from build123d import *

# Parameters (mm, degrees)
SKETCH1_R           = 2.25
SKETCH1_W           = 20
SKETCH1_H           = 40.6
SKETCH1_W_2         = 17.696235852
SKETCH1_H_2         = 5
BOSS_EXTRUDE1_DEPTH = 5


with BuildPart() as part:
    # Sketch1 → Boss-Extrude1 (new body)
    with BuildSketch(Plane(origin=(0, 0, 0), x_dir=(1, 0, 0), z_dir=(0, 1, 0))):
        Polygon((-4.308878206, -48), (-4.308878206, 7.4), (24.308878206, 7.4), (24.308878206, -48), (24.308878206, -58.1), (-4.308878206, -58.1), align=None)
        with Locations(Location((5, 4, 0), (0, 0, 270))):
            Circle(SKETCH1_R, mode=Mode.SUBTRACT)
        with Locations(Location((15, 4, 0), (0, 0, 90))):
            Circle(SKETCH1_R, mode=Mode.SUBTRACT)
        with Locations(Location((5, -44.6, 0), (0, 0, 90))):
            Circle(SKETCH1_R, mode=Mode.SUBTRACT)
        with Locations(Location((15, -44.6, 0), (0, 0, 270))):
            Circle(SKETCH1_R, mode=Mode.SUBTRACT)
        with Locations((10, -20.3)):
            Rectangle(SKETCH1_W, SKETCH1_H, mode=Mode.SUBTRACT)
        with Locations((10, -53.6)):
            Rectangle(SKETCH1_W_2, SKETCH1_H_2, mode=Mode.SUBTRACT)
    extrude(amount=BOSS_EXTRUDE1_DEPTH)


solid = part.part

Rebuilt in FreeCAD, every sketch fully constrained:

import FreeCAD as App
import Part
import Sketcher
from FreeCAD import Vector
Q = App.Units.Quantity

doc = App.newDocument("Part")
body = doc.addObject("PartDesign::Body", "Body")

# Sketch on XZ plane
sketch1 = doc.addObject("Sketcher::SketchObject", "Sketch")
body.addObject(sketch1)
sketch1.AttachmentSupport = (doc.XZ_Plane, [""])
sketch1.MapMode = "FlatFace"
sketch1.addGeometry([
    Part.LineSegment(Vector(-4.3, -7.4, 0), Vector(-4.3, 58.1, 0)),  # 0
    Part.LineSegment(Vector(-4.3, 58.1, 0), Vector(24.3, 58.1, 0)),  # 1
    Part.LineSegment(Vector(24.3, 58.1, 0), Vector(24.3, -7.4, 0)),  # 2
    Part.LineSegment(Vector(24.3, -7.4, 0), Vector(-4.3, -7.4, 0)),  # 3
    Part.Circle(Vector(15, 44.6, 0), Vector(0, 0, 1), 2.2),  # 4
    Part.LineSegment(Vector(1.2, 56.1, 0), Vector(1.2, 51.1, 0)),  # 5
    Part.LineSegment(Vector(1.2, 51.1, 0), Vector(18.8, 51.1, 0)),  # 6
    Part.LineSegment(Vector(18.8, 51.1, 0), Vector(18.8, 56.1, 0)),  # 7
    Part.LineSegment(Vector(18.8, 56.1, 0), Vector(1.2, 56.1, 0)),  # 8
    Part.Circle(Vector(5, 44.6, 0), Vector(0, 0, 1), 2.2),  # 9
    Part.Circle(Vector(15, -4, 0), Vector(0, 0, 1), 2.2),  # 10
    Part.LineSegment(Vector(0, 40.6, 0), Vector(0, 0, 0)),  # 11
    Part.LineSegment(Vector(0, 0, 0), Vector(20, 0, 0)),  # 12
    Part.LineSegment(Vector(20, 0, 0), Vector(20, 40.6, 0)),  # 13
    Part.LineSegment(Vector(20, 40.6, 0), Vector(0, 40.6, 0)),  # 14
    Part.Circle(Vector(5, -4, 0), Vector(0, 0, 1), 2.2),  # 15
], False)
sketch1.addConstraint([
    Sketcher.Constraint("Coincident", 0, 2, 1, 1),
    Sketcher.Constraint("Coincident", 1, 2, 2, 1),
    Sketcher.Constraint("Coincident", 2, 2, 3, 1),
    Sketcher.Constraint("Coincident", 3, 2, 0, 1),
    Sketcher.Constraint("Coincident", 5, 2, 6, 1),
    Sketcher.Constraint("Coincident", 6, 2, 7, 1),
    Sketcher.Constraint("Coincident", 7, 2, 8, 1),
    Sketcher.Constraint("Coincident", 8, 2, 5, 1),
    Sketcher.Constraint("Coincident", 11, 2, 12, 1),
    Sketcher.Constraint("Coincident", 12, 2, 13, 1),
    Sketcher.Constraint("Coincident", 13, 2, 14, 1),
    Sketcher.Constraint("Coincident", 14, 2, 11, 1),
    Sketcher.Constraint("Vertical", 0),
    Sketcher.Constraint("Horizontal", 1),
    Sketcher.Constraint("Vertical", 2),
    Sketcher.Constraint("Horizontal", 3),
    Sketcher.Constraint("Vertical", 5),
    Sketcher.Constraint("Horizontal", 6),
    Sketcher.Constraint("Vertical", 7),
    Sketcher.Constraint("Horizontal", 8),
    Sketcher.Constraint("Vertical", 11),
    Sketcher.Constraint("Horizontal", 12),
    Sketcher.Constraint("Vertical", 13),
    Sketcher.Constraint("Horizontal", 14),
    Sketcher.Constraint("Coincident", 11, 2, -1, 1),
    Sketcher.Constraint("Equal", 4, 9),
    Sketcher.Constraint("Equal", 9, 10),
    Sketcher.Constraint("Equal", 10, 15),
    Sketcher.Constraint("Horizontal", 4, 3, 9, 3),
    Sketcher.Constraint("Horizontal", 10, 3, 15, 3),
    Sketcher.Constraint("Vertical", 4, 3, 10, 3),
    Sketcher.Constraint("Vertical", 9, 3, 15, 3),
    Sketcher.Constraint("Diameter", 4, Q("4.5 mm")),
    Sketcher.Constraint("DistanceX", 12, 1, 12, 2, Q("20 mm")),
    Sketcher.Constraint("DistanceY", 5, 2, 5, 1, Q("5 mm")),
    Sketcher.Constraint("DistanceY", 0, 1, 0, 2, Q("65.5 mm")),
    Sketcher.Constraint("DistanceY", 11, 2, 11, 1, Q("40.6 mm")),
    Sketcher.Constraint("DistanceX", -1, 1, 4, 3, Q("15 mm")),
    Sketcher.Constraint("DistanceX", -1, 1, 9, 3, Q("5 mm")),
    Sketcher.Constraint("DistanceY", 10, 3, -1, 1, Q("4 mm")),
    Sketcher.Constraint("DistanceY", 2, 2, 4, 3, Q("52 mm")),
    Sketcher.Constraint("DistanceY", 5, 2, 0, 2, Q("7 mm")),
    Sketcher.Constraint("DistanceY", 13, 2, 4, 3, Q("4 mm")),
    Sketcher.Constraint("DistanceX", 1, 1, 1, 2, Q("28.617756 mm")),
    Sketcher.Constraint("DistanceX", 6, 1, 6, 2, Q("17.696236 mm")),
    Sketcher.Constraint("DistanceX", 0, 2, -1, 1, Q("4.308878 mm")),
    Sketcher.Constraint("DistanceX", 0, 2, 5, 2, Q("5.46076 mm")),
])
pad1 = doc.addObject("PartDesign::Pad", "Pad")
body.addObject(pad1)
pad1.Profile = sketch1
pad1.Length = 5
pad1.Reversed = True

doc.recompute()
